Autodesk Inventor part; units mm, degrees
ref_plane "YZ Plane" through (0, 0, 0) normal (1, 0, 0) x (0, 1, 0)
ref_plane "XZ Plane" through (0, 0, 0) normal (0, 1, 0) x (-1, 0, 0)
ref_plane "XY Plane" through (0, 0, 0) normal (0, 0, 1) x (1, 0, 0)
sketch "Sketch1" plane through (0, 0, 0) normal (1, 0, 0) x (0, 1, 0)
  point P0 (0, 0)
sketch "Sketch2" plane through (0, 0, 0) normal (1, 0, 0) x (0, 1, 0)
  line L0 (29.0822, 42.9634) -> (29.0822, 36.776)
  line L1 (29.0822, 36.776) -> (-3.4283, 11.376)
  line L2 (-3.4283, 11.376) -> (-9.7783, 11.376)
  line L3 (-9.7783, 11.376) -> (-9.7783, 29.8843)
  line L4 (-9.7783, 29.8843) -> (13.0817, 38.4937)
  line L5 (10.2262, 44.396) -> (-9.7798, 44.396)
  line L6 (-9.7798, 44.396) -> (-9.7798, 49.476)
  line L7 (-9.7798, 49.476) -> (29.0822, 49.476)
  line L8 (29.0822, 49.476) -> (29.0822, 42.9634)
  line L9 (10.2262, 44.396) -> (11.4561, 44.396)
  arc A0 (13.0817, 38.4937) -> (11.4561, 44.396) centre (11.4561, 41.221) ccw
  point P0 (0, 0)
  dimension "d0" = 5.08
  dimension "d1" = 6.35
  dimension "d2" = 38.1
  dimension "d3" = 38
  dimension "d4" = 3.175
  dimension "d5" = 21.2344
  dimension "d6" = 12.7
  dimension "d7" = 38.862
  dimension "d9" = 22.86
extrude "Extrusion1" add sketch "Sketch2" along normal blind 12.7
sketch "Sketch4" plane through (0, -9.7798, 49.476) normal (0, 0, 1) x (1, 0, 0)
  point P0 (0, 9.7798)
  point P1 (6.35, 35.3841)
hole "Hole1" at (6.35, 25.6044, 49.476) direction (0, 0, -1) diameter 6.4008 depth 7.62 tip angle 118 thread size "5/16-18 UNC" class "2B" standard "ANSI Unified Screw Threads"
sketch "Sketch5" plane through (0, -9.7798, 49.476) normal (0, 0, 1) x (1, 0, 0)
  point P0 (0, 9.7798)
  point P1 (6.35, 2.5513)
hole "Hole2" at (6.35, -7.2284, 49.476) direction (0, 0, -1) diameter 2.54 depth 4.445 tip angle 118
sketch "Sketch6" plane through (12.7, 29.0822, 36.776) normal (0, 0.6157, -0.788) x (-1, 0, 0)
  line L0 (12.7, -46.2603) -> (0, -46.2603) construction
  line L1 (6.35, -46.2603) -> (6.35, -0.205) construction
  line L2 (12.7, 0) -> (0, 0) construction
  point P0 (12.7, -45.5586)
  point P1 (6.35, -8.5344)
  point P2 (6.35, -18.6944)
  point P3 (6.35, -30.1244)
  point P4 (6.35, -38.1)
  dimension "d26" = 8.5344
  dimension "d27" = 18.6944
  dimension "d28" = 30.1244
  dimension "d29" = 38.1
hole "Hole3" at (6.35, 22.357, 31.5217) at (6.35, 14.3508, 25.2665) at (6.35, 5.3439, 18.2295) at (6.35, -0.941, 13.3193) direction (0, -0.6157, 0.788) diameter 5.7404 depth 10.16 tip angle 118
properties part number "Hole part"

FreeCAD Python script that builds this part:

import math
import FreeCAD as App
import Part
import Sketcher
from FreeCAD import Vector
Q = App.Units.Quantity

doc = App.newDocument("Part")
body = doc.addObject("PartDesign::Body", "Body")

# Sketch on YZ plane
sketch1 = body.newObject("Sketcher::SketchObject", "Sketch")
sketch1.AttachmentSupport = (doc.getObject("YZ_Plane"), [""])
sketch1.MapMode = "FlatFace"
sketch1.addGeometry(Part.LineSegment(Vector(29.1, 36.8, 0), Vector(29.1, 49.5, 0)), False)
sketch1.addGeometry(Part.LineSegment(Vector(29.1, 49.5, 0), Vector(-9.8, 49.5, 0)), False)
sketch1.addGeometry(Part.LineSegment(Vector(-9.8, 49.5, 0), Vector(-9.8, 44.4, 0)), False)
sketch1.addGeometry(Part.LineSegment(Vector(-9.8, 44.4, 0), Vector(11.5, 44.4, 0)), False)
sketch1.addGeometry(Part.ArcOfCircle(Part.Circle(Vector(11.5, 41.2, 0), Vector(0, 0, 1), 3.2), math.radians(-59), math.radians(90)), False)
sketch1.addGeometry(Part.LineSegment(Vector(13.1, 38.5, 0), Vector(-9.8, 29.9, 0)), False)
sketch1.addGeometry(Part.LineSegment(Vector(-9.8, 29.9, 0), Vector(-9.8, 11.4, 0)), False)
sketch1.addGeometry(Part.LineSegment(Vector(-9.8, 11.4, 0), Vector(-3.4, 11.4, 0)), False)
sketch1.addGeometry(Part.LineSegment(Vector(-3.4, 11.4, 0), Vector(29.1, 36.8, 0)), False)
sketch1.addConstraint(Sketcher.Constraint("Coincident", 0, 2, 1, 1))
sketch1.addConstraint(Sketcher.Constraint("Coincident", 1, 2, 2, 1))
sketch1.addConstraint(Sketcher.Constraint("Coincident", 2, 2, 3, 1))
sketch1.addConstraint(Sketcher.Constraint("Tangent", 3, 2, 4, 2))
sketch1.addConstraint(Sketcher.Constraint("Coincident", 4, 1, 5, 1))
sketch1.addConstraint(Sketcher.Constraint("Coincident", 5, 2, 6, 1))
sketch1.addConstraint(Sketcher.Constraint("Coincident", 6, 2, 7, 1))
sketch1.addConstraint(Sketcher.Constraint("Coincident", 7, 2, 8, 1))
sketch1.addConstraint(Sketcher.Constraint("Coincident", 8, 2, 0, 1))
sketch1.addConstraint(Sketcher.Constraint("Vertical", 0))
sketch1.addConstraint(Sketcher.Constraint("Horizontal", 1))
sketch1.addConstraint(Sketcher.Constraint("Vertical", 2))
sketch1.addConstraint(Sketcher.Constraint("Horizontal", 3))
sketch1.addConstraint(Sketcher.Constraint("Vertical", 6))
sketch1.addConstraint(Sketcher.Constraint("Horizontal", 7))
sketch1.addConstraint(Sketcher.Constraint("DistanceY", 0, 1, 0, 2, Q("0.5 in")))
sketch1.addConstraint(Sketcher.Constraint("DistanceY", 2, 2, 2, 1, Q("0.2 in")))
sketch1.addConstraint(Sketcher.Constraint("Angle", 8, Q("38 deg")))
sketch1.addConstraint(Sketcher.Constraint("Radius", 4, Q("0.125 in")))
sketch1.addConstraint(Sketcher.Constraint("DistanceX", 1, 2, 1, 1, Q("1.53 in")))
sketch1.addConstraint(Sketcher.Constraint("DistanceX", 7, 1, 7, 2, Q("0.25 in")))
sketch1.addConstraint(Sketcher.Constraint("DistanceX", 5, 2, 4, 1, Q("0.9 in")))
sketch1.addConstraint(Sketcher.Constraint("DistanceY", 6, 2, 1, 2, Q("1.5 in")))
sketch1.addConstraint(Sketcher.Constraint("DistanceX", 5, 2, 4, 3, Q("0.836 in")))
sketch1.addConstraint(Sketcher.Constraint("Distance", 5, Q("0.9617 in")))
sketch1.addConstraint(Sketcher.Constraint("DistanceY", -1, 1, 4, 1, Q("1.5155 in")))
sketch1.addConstraint(Sketcher.Constraint("DistanceX", -1, 1, 4, 3, 11.456))
pad1 = body.newObject("PartDesign::Pad", "Pad")
pad1.Profile = sketch1
pad1.Length = Q("0.5 in")

# Sketch on XY plane
sketch2 = body.newObject("Sketcher::SketchObject", "Sketch001")
sketch2.AttachmentSupport = (doc.getObject("XY_Plane"), [""])
sketch2.MapMode = "FlatFace"
sketch2.AttachmentOffset = App.Placement(Vector(0, 0, 49.476), App.Rotation())
sketch2.addGeometry(Part.Circle(Vector(6.3, 25.6, 0), Vector(0, 0, 1), 3.2), False)
sketch2.addConstraint(Sketcher.Constraint("Diameter", 0, Q("0.252 in")))
sketch2.addConstraint(Sketcher.Constraint("DistanceX", -1, 1, 0, 3, Q("0.25 in")))
sketch2.addConstraint(Sketcher.Constraint("DistanceY", -1, 1, 0, 3, 25.6044))
doc.recompute()
hole = body.newObject("PartDesign::Hole", "Hole")
hole.Profile = sketch2
hole.ThreadType = "None"
hole.Diameter = Q("0.252 in")
hole.DepthType = "Dimension"
hole.Depth = Q("0.3 in")
hole.DrillPoint = "Angled"
hole.DrillPointAngle = 118

# Sketch on XY plane
sketch3 = body.newObject("Sketcher::SketchObject", "Sketch002")
sketch3.AttachmentSupport = (doc.getObject("XY_Plane"), [""])
sketch3.MapMode = "FlatFace"
sketch3.AttachmentOffset = App.Placement(Vector(0, 0, 49.476), App.Rotation())
sketch3.addGeometry(Part.Circle(Vector(6.3, -7.2, 0), Vector(0, 0, 1), 1.3), False)
sketch3.addConstraint(Sketcher.Constraint("Diameter", 0, Q("0.1 in")))
sketch3.addConstraint(Sketcher.Constraint("DistanceX", -1, 1, 0, 3, Q("0.25 in")))
sketch3.addConstraint(Sketcher.Constraint("DistanceY", 0, 3, -1, 1, 7.2284))
doc.recompute()
hole2 = body.newObject("PartDesign::Hole", "Hole001")
hole2.Profile = sketch3
hole2.ThreadType = "None"
hole2.Diameter = Q("0.1 in")
hole2.DepthType = "Dimension"
hole2.Depth = Q("0.175 in")
hole2.DrillPoint = "Angled"
hole2.DrillPointAngle = 118

# Sketch on an angled plane
sketch4 = body.newObject("Sketcher::SketchObject", "Sketch003")
sketch4.Placement = App.Placement(Vector(0, -6.818509, 8.727294), App.Rotation(Vector(0, 0.788010754, 0.615661475), Vector(1, 0, 0), Vector(0, 0.615661475, -0.788010754), "ZXY"))
sketch4.addGeometry(Part.Circle(Vector(37, 6.4, 0), Vector(0, 0, 1), 2.9), False)
sketch4.addGeometry(Part.Circle(Vector(26.9, 6.4, 0), Vector(0, 0, 1), 2.9), False)
sketch4.addGeometry(Part.Circle(Vector(15.4, 6.4, 0), Vector(0, 0, 1), 2.9), False)
sketch4.addGeometry(Part.Circle(Vector(7.5, 6.4, 0), Vector(0, 0, 1), 2.9), False)
sketch4.addConstraint(Sketcher.Constraint("Equal", 0, 1))
sketch4.addConstraint(Sketcher.Constraint("Equal", 1, 2))
sketch4.addConstraint(Sketcher.Constraint("Equal", 2, 3))
sketch4.addConstraint(Sketcher.Constraint("Horizontal", 0, 3, 1, 3))
sketch4.addConstraint(Sketcher.Constraint("Horizontal", 1, 3, 2, 3))
sketch4.addConstraint(Sketcher.Constraint("Horizontal", 2, 3, 3, 3))
sketch4.addConstraint(Sketcher.Constraint("Diameter", 0, Q("0.226 in")))
sketch4.addConstraint(Sketcher.Constraint("DistanceX", 1, 3, 0, 3, Q("0.4 in")))
sketch4.addConstraint(Sketcher.Constraint("DistanceY", -1, 1, 0, 3, Q("0.25 in")))
sketch4.addConstraint(Sketcher.Constraint("DistanceX", 2, 3, 1, 3, Q("0.45 in")))
sketch4.addConstraint(Sketcher.Constraint("DistanceX", 3, 3, 2, 3, Q("0.314 in")))
sketch4.addConstraint(Sketcher.Constraint("DistanceX", -1, 1, 0, 3, 37.0243))
doc.recompute()
hole3 = body.newObject("PartDesign::Hole", "Hole002")
hole3.Profile = sketch4
hole3.ThreadType = "None"
hole3.Diameter = Q("0.226 in")
hole3.DepthType = "Dimension"
hole3.Depth = Q("0.4 in")
hole3.DrillPoint = "Angled"
hole3.DrillPointAngle = 118

doc.recompute()
